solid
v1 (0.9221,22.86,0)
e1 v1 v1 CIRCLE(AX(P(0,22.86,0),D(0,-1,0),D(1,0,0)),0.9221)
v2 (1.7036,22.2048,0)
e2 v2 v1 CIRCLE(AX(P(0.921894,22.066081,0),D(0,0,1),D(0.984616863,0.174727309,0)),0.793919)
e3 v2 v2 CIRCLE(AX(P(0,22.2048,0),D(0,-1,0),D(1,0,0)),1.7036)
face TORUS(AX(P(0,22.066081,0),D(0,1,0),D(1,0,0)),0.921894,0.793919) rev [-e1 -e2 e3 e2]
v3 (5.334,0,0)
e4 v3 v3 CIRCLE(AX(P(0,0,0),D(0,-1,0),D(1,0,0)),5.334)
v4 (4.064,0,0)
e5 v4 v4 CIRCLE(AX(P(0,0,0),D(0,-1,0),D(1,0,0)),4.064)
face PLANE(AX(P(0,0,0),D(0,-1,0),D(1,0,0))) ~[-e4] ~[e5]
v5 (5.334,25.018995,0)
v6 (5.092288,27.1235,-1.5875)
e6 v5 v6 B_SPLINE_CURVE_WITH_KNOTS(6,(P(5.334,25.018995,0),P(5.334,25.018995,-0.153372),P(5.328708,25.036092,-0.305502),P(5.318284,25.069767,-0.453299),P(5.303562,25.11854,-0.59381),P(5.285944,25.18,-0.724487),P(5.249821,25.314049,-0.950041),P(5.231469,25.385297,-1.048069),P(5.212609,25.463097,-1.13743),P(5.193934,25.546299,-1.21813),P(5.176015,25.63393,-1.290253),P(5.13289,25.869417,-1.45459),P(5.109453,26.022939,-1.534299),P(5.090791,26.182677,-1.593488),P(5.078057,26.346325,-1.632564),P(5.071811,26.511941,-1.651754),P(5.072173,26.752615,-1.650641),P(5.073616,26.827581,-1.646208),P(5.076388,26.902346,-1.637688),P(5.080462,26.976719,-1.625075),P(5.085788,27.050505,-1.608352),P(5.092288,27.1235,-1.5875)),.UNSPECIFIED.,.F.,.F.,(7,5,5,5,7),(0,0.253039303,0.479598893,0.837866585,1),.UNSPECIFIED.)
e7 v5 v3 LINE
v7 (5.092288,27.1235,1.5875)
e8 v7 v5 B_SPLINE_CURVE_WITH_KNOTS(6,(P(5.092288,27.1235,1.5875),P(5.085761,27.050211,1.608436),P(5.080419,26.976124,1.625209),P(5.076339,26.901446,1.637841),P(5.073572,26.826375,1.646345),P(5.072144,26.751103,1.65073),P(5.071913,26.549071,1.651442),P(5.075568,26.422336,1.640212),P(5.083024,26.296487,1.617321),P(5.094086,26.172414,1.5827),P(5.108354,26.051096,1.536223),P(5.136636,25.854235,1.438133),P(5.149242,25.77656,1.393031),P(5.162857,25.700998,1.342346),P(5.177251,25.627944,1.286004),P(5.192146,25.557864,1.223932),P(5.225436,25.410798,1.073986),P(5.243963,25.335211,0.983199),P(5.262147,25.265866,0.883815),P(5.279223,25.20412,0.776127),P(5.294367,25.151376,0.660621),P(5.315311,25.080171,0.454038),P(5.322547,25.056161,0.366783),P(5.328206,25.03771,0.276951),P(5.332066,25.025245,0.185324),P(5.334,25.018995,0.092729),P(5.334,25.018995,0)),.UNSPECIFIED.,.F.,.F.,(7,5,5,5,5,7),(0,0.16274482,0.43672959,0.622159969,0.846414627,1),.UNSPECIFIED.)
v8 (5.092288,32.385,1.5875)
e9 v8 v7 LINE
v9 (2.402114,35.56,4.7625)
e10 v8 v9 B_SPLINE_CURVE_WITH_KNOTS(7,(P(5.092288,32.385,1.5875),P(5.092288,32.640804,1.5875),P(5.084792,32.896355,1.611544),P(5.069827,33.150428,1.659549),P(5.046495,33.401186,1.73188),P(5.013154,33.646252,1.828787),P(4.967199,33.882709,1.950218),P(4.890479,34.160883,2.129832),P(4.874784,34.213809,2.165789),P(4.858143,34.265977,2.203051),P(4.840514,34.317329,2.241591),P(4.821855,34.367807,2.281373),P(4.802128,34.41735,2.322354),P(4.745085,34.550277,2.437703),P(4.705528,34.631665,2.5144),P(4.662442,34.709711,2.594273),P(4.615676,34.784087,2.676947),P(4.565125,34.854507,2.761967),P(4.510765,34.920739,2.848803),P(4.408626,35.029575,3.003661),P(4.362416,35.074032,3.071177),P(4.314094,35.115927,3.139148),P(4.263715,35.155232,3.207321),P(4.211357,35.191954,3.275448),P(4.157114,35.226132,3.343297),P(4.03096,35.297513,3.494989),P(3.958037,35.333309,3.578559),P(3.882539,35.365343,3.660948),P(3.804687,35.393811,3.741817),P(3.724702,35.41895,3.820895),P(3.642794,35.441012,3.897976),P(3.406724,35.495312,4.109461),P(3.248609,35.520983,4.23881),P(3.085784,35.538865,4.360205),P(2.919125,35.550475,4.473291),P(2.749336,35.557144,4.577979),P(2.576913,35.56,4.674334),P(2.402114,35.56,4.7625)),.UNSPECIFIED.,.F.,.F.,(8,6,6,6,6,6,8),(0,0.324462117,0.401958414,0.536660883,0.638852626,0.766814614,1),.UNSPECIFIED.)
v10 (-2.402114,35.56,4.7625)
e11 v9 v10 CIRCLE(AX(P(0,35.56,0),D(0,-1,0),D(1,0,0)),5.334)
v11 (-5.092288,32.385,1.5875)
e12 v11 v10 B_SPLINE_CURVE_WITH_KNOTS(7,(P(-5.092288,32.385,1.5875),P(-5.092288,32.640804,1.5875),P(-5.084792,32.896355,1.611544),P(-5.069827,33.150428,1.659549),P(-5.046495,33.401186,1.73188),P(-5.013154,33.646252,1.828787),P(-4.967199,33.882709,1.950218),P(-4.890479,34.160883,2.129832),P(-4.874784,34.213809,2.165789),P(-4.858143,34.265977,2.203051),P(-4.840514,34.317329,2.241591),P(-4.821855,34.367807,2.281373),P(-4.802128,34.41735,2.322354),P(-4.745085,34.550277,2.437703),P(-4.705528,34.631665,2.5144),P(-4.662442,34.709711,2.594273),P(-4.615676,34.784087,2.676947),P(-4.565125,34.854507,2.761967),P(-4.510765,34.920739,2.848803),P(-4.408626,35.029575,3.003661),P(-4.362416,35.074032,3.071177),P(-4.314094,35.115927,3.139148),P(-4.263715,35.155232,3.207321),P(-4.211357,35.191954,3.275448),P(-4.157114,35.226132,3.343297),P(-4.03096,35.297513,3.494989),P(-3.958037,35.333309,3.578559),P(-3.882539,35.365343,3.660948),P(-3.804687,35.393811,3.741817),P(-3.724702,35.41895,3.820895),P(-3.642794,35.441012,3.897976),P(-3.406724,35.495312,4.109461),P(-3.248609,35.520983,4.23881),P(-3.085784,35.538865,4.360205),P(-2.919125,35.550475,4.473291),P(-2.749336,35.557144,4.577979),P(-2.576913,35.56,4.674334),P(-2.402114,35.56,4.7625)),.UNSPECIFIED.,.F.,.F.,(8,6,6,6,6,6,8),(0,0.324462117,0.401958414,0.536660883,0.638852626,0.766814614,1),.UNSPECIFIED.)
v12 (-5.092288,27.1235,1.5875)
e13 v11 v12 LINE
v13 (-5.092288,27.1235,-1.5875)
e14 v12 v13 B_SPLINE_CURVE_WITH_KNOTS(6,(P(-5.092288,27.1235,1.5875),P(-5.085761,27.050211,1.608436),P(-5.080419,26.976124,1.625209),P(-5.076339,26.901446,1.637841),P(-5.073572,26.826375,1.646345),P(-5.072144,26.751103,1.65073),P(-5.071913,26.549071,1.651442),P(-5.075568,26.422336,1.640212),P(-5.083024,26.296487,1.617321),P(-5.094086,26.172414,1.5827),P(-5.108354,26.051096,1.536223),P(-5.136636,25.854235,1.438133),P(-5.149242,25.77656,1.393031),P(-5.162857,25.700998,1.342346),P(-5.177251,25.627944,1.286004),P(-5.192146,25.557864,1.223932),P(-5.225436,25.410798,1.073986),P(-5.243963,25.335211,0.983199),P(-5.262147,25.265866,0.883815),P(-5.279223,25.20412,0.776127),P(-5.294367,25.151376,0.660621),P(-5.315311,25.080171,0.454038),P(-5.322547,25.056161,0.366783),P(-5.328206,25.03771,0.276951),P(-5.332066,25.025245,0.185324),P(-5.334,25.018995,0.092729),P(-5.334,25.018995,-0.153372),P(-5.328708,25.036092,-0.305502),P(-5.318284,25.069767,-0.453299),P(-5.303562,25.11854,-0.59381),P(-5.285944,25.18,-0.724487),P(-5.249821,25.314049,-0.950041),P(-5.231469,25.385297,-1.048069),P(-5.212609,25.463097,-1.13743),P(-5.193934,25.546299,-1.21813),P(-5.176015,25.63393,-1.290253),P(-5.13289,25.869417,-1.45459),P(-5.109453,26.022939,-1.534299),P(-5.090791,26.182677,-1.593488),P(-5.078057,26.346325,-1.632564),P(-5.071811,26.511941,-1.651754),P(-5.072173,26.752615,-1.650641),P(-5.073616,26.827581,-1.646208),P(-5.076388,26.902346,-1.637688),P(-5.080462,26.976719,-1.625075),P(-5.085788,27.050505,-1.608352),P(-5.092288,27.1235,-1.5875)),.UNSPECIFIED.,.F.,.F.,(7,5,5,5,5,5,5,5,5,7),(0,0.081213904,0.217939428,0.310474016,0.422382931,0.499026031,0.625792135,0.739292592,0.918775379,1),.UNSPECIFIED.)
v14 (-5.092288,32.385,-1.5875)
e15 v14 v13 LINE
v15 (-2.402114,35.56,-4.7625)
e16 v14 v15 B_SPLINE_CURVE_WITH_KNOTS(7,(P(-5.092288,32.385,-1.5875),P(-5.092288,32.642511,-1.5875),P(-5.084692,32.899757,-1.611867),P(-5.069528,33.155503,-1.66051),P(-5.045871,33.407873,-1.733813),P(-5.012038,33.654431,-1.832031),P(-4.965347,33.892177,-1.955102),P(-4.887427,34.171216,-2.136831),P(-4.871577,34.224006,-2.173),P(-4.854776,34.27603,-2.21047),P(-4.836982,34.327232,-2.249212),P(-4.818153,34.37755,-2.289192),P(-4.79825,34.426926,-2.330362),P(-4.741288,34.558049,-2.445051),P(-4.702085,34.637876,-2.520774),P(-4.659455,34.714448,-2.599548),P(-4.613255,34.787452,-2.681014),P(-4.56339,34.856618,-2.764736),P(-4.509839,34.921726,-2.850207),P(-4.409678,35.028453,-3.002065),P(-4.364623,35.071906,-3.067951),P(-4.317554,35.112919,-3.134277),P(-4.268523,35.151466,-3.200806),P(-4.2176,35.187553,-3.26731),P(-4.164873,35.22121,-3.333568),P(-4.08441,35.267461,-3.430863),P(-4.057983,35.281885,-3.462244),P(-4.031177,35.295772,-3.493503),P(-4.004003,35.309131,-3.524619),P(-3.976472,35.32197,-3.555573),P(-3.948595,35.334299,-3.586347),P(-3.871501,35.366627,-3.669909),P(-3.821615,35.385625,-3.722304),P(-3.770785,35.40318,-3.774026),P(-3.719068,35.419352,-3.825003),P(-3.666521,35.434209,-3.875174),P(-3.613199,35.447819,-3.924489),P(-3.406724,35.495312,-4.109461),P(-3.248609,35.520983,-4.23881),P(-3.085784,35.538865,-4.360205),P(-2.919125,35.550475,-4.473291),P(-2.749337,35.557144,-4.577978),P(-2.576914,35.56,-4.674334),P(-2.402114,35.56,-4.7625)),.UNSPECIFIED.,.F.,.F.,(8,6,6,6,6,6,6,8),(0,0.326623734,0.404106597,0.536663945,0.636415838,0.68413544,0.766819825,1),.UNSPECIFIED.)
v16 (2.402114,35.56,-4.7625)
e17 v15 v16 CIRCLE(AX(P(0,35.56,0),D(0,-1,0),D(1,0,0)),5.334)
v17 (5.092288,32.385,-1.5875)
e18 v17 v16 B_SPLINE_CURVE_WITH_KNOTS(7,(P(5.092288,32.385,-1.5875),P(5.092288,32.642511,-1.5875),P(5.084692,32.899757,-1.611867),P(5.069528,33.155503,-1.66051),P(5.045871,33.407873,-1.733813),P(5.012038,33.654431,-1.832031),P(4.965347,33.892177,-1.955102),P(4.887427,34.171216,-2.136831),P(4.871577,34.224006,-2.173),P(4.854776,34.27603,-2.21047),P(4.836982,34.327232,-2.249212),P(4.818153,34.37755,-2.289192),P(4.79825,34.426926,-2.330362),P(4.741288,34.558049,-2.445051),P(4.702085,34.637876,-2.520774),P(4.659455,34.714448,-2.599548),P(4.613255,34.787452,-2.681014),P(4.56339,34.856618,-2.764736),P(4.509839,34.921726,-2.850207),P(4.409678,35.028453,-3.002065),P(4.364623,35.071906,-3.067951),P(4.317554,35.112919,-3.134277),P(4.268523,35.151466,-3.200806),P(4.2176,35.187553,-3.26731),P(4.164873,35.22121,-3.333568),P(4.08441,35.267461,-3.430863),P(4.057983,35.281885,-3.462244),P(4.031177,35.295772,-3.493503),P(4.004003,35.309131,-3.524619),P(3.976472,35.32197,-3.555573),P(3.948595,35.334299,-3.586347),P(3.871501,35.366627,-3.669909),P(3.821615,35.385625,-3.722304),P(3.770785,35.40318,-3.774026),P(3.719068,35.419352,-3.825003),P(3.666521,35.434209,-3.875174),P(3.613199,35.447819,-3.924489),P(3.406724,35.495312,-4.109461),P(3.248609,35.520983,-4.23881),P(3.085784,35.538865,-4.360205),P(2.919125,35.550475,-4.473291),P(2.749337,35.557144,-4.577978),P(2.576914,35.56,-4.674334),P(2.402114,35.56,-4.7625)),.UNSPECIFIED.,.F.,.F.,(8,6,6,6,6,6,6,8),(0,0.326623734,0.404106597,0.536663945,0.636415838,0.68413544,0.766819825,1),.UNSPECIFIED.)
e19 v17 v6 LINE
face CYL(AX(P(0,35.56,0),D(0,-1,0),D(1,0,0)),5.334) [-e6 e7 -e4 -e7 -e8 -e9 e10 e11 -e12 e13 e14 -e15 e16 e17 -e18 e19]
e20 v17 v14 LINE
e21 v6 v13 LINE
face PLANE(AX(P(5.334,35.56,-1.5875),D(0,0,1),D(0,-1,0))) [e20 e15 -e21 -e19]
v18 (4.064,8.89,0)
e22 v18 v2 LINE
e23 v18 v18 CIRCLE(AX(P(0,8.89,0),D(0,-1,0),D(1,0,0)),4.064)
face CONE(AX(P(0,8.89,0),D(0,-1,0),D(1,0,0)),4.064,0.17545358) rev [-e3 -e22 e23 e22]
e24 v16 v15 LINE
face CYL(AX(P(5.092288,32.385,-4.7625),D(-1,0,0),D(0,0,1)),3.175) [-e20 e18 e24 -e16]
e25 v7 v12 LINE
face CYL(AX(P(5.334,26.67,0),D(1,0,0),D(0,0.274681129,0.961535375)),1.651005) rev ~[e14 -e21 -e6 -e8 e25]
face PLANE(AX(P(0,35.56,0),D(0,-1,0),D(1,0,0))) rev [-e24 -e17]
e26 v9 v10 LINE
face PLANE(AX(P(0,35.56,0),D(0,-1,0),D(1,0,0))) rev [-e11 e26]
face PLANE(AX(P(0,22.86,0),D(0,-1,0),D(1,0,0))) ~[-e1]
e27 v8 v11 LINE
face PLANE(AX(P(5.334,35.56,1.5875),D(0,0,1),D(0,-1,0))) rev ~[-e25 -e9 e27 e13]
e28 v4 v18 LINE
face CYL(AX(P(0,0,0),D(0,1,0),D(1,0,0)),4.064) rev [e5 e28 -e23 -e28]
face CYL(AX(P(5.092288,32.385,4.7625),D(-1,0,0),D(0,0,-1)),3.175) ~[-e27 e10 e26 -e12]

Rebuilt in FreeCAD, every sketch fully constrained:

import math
import FreeCAD as App
import Part
import Sketcher
from FreeCAD import Vector
Q = App.Units.Quantity


def edges_at(feature, points):
    """Names of the edges that pass closest to the given points."""
    edges = feature.Shape.Edges
    near = lambda p: min(range(len(edges)), key=lambda i: edges[i].distToShape(Part.Vertex(*p))[0])
    return sorted({f"Edge{near(p) + 1}" for p in points})

doc = App.newDocument("Part")
body = doc.addObject("PartDesign::Body", "Body")

sketch1 = body.newObject("Sketcher::SketchObject", "Sketch")
sketch1.AttachmentSupport = (doc.getObject("XY_Plane"), [""])
sketch1.MapMode = "FlatFace"
sketch1.addGeometry(Part.LineSegment(Vector(4.1, 8.9, 0), Vector(4.1, 0, 0)), False)
sketch1.addGeometry(Part.LineSegment(Vector(4.1, 0, 0), Vector(5.3, 0, 0)), False)
sketch1.addGeometry(Part.LineSegment(Vector(5.3, 0, 0), Vector(5.3, 35.6, 0)), False)
sketch1.addGeometry(Part.LineSegment(Vector(5.3, 35.6, 0), Vector(0, 35.6, 0)), False)
sketch1.addGeometry(Part.LineSegment(Vector(0, 35.6, 0), Vector(0, 22.9, 0)), False)
sketch1.addGeometry(Part.LineSegment(Vector(0, 22.9, 0), Vector(0.9, 22.9, 0)), False)
sketch1.addGeometry(Part.ArcOfCircle(Part.Circle(Vector(0.9, 22.1, 0), Vector(0, 0, 1), 0.8), math.radians(10), math.radians(90)), False)
sketch1.addGeometry(Part.LineSegment(Vector(1.7, 22.2, 0), Vector(4.1, 8.9, 0)), False)
sketch1.addConstraint(Sketcher.Constraint("Coincident", 0, 2, 1, 1))
sketch1.addConstraint(Sketcher.Constraint("Coincident", 1, 2, 2, 1))
sketch1.addConstraint(Sketcher.Constraint("Coincident", 2, 2, 3, 1))
sketch1.addConstraint(Sketcher.Constraint("Coincident", 3, 2, 4, 1))
sketch1.addConstraint(Sketcher.Constraint("Coincident", 4, 2, 5, 1))
sketch1.addConstraint(Sketcher.Constraint("Tangent", 5, 2, 6, 2))
sketch1.addConstraint(Sketcher.Constraint("Tangent", 6, 1, 7, 1))
sketch1.addConstraint(Sketcher.Constraint("Coincident", 7, 2, 0, 1))
sketch1.addConstraint(Sketcher.Constraint("Vertical", 0))
sketch1.addConstraint(Sketcher.Constraint("Horizontal", 1))
sketch1.addConstraint(Sketcher.Constraint("Vertical", 2))
sketch1.addConstraint(Sketcher.Constraint("Horizontal", 3))
sketch1.addConstraint(Sketcher.Constraint("Vertical", 4))
sketch1.addConstraint(Sketcher.Constraint("Horizontal", 5))
sketch1.addConstraint(Sketcher.Constraint("PointOnObject", 0, 2, -1))
sketch1.addConstraint(Sketcher.Constraint("PointOnObject", 3, 2, -2))
sketch1.addConstraint(Sketcher.Constraint("DistanceY", 4, 2, 4, 1, Q("0.5 in")))
sketch1.addConstraint(Sketcher.Constraint("Radius", 6, Q("0.031248 in")))
sketch1.addConstraint(Sketcher.Constraint("DistanceX", 3, 2, 3, 1, Q("0.21 in")))
sketch1.addConstraint(Sketcher.Constraint("DistanceY", 0, 2, 0, 1, Q("0.35 in")))
sketch1.addConstraint(Sketcher.Constraint("DistanceX", -1, 1, 0, 2, Q("0.16 in")))
sketch1.addConstraint(Sketcher.Constraint("DistanceY", 7, 2, 5, 2, Q("0.55 in")))
sketch1.addConstraint(Sketcher.Constraint("DistanceX", 5, 1, 5, 2, Q("0.0363 in")))
revolution = body.newObject("PartDesign::Revolution", "Revolution")
revolution.Profile = sketch1
revolution.ReferenceAxis = (sketch1, ["V_Axis"])
revolution.Angle = 360

sketch2 = body.newObject("Sketcher::SketchObject", "Sketch001")
sketch2.AttachmentSupport = (doc.getObject("YZ_Plane"), [""])
sketch2.MapMode = "FlatFace"
sketch2.AttachmentOffset = App.Placement(Vector(0, 0, 0.21 * 25.4), App.Rotation())
sketch2.addGeometry(Part.LineSegment(Vector(35.6, 1.6, 0), Vector(27.1, 1.6, 0)), False)
sketch2.addGeometry(Part.ArcOfCircle(Part.Circle(Vector(26.7, 0, 0), Vector(0, 0, 1), 1.7), math.radians(74), math.radians(286)), False)
sketch2.addGeometry(Part.LineSegment(Vector(27.1, -1.6, 0), Vector(35.6, -1.6, 0)), False)
sketch2.addGeometry(Part.LineSegment(Vector(35.6, -1.6, 0), Vector(35.6, 1.6, 0)), False)
sketch2.addConstraint(Sketcher.Constraint("Coincident", 0, 2, 1, 1))
sketch2.addConstraint(Sketcher.Constraint("Coincident", 1, 2, 2, 1))
sketch2.addConstraint(Sketcher.Constraint("Coincident", 2, 2, 3, 1))
sketch2.addConstraint(Sketcher.Constraint("Coincident", 3, 2, 0, 1))
sketch2.addConstraint(Sketcher.Constraint("Horizontal", 0))
sketch2.addConstraint(Sketcher.Constraint("Horizontal", 2))
sketch2.addConstraint(Sketcher.Constraint("Vertical", 3))
sketch2.addConstraint(Sketcher.Constraint("Symmetric", 0, 2, 1, 2, -1))
sketch2.addConstraint(Sketcher.Constraint("Radius", 1, Q("0.065 in")))
sketch2.addConstraint(Sketcher.Constraint("DistanceX", 1, 3, 2, 2, Q("0.35 in")))
sketch2.addConstraint(Sketcher.Constraint("DistanceY", -1, 1, 0, 2, Q("0.0625 in")))
sketch2.addConstraint(Sketcher.Constraint("DistanceX", -1, 1, 2, 2, Q("1.4 in")))
pocket1 = body.newObject("PartDesign::Pocket", "Pocket")
pocket1.Profile = sketch2
pocket1.Type = "ThroughAll"
doc.recompute()

fillet = body.newObject("PartDesign::Fillet", "Fillet")
fillet.Base = (pocket1, edges_at(pocket1, [(0, 35.56, 1.587), (0, 35.56, -1.587)]))
fillet.Radius = Q("0.125 in")

doc.recompute()
